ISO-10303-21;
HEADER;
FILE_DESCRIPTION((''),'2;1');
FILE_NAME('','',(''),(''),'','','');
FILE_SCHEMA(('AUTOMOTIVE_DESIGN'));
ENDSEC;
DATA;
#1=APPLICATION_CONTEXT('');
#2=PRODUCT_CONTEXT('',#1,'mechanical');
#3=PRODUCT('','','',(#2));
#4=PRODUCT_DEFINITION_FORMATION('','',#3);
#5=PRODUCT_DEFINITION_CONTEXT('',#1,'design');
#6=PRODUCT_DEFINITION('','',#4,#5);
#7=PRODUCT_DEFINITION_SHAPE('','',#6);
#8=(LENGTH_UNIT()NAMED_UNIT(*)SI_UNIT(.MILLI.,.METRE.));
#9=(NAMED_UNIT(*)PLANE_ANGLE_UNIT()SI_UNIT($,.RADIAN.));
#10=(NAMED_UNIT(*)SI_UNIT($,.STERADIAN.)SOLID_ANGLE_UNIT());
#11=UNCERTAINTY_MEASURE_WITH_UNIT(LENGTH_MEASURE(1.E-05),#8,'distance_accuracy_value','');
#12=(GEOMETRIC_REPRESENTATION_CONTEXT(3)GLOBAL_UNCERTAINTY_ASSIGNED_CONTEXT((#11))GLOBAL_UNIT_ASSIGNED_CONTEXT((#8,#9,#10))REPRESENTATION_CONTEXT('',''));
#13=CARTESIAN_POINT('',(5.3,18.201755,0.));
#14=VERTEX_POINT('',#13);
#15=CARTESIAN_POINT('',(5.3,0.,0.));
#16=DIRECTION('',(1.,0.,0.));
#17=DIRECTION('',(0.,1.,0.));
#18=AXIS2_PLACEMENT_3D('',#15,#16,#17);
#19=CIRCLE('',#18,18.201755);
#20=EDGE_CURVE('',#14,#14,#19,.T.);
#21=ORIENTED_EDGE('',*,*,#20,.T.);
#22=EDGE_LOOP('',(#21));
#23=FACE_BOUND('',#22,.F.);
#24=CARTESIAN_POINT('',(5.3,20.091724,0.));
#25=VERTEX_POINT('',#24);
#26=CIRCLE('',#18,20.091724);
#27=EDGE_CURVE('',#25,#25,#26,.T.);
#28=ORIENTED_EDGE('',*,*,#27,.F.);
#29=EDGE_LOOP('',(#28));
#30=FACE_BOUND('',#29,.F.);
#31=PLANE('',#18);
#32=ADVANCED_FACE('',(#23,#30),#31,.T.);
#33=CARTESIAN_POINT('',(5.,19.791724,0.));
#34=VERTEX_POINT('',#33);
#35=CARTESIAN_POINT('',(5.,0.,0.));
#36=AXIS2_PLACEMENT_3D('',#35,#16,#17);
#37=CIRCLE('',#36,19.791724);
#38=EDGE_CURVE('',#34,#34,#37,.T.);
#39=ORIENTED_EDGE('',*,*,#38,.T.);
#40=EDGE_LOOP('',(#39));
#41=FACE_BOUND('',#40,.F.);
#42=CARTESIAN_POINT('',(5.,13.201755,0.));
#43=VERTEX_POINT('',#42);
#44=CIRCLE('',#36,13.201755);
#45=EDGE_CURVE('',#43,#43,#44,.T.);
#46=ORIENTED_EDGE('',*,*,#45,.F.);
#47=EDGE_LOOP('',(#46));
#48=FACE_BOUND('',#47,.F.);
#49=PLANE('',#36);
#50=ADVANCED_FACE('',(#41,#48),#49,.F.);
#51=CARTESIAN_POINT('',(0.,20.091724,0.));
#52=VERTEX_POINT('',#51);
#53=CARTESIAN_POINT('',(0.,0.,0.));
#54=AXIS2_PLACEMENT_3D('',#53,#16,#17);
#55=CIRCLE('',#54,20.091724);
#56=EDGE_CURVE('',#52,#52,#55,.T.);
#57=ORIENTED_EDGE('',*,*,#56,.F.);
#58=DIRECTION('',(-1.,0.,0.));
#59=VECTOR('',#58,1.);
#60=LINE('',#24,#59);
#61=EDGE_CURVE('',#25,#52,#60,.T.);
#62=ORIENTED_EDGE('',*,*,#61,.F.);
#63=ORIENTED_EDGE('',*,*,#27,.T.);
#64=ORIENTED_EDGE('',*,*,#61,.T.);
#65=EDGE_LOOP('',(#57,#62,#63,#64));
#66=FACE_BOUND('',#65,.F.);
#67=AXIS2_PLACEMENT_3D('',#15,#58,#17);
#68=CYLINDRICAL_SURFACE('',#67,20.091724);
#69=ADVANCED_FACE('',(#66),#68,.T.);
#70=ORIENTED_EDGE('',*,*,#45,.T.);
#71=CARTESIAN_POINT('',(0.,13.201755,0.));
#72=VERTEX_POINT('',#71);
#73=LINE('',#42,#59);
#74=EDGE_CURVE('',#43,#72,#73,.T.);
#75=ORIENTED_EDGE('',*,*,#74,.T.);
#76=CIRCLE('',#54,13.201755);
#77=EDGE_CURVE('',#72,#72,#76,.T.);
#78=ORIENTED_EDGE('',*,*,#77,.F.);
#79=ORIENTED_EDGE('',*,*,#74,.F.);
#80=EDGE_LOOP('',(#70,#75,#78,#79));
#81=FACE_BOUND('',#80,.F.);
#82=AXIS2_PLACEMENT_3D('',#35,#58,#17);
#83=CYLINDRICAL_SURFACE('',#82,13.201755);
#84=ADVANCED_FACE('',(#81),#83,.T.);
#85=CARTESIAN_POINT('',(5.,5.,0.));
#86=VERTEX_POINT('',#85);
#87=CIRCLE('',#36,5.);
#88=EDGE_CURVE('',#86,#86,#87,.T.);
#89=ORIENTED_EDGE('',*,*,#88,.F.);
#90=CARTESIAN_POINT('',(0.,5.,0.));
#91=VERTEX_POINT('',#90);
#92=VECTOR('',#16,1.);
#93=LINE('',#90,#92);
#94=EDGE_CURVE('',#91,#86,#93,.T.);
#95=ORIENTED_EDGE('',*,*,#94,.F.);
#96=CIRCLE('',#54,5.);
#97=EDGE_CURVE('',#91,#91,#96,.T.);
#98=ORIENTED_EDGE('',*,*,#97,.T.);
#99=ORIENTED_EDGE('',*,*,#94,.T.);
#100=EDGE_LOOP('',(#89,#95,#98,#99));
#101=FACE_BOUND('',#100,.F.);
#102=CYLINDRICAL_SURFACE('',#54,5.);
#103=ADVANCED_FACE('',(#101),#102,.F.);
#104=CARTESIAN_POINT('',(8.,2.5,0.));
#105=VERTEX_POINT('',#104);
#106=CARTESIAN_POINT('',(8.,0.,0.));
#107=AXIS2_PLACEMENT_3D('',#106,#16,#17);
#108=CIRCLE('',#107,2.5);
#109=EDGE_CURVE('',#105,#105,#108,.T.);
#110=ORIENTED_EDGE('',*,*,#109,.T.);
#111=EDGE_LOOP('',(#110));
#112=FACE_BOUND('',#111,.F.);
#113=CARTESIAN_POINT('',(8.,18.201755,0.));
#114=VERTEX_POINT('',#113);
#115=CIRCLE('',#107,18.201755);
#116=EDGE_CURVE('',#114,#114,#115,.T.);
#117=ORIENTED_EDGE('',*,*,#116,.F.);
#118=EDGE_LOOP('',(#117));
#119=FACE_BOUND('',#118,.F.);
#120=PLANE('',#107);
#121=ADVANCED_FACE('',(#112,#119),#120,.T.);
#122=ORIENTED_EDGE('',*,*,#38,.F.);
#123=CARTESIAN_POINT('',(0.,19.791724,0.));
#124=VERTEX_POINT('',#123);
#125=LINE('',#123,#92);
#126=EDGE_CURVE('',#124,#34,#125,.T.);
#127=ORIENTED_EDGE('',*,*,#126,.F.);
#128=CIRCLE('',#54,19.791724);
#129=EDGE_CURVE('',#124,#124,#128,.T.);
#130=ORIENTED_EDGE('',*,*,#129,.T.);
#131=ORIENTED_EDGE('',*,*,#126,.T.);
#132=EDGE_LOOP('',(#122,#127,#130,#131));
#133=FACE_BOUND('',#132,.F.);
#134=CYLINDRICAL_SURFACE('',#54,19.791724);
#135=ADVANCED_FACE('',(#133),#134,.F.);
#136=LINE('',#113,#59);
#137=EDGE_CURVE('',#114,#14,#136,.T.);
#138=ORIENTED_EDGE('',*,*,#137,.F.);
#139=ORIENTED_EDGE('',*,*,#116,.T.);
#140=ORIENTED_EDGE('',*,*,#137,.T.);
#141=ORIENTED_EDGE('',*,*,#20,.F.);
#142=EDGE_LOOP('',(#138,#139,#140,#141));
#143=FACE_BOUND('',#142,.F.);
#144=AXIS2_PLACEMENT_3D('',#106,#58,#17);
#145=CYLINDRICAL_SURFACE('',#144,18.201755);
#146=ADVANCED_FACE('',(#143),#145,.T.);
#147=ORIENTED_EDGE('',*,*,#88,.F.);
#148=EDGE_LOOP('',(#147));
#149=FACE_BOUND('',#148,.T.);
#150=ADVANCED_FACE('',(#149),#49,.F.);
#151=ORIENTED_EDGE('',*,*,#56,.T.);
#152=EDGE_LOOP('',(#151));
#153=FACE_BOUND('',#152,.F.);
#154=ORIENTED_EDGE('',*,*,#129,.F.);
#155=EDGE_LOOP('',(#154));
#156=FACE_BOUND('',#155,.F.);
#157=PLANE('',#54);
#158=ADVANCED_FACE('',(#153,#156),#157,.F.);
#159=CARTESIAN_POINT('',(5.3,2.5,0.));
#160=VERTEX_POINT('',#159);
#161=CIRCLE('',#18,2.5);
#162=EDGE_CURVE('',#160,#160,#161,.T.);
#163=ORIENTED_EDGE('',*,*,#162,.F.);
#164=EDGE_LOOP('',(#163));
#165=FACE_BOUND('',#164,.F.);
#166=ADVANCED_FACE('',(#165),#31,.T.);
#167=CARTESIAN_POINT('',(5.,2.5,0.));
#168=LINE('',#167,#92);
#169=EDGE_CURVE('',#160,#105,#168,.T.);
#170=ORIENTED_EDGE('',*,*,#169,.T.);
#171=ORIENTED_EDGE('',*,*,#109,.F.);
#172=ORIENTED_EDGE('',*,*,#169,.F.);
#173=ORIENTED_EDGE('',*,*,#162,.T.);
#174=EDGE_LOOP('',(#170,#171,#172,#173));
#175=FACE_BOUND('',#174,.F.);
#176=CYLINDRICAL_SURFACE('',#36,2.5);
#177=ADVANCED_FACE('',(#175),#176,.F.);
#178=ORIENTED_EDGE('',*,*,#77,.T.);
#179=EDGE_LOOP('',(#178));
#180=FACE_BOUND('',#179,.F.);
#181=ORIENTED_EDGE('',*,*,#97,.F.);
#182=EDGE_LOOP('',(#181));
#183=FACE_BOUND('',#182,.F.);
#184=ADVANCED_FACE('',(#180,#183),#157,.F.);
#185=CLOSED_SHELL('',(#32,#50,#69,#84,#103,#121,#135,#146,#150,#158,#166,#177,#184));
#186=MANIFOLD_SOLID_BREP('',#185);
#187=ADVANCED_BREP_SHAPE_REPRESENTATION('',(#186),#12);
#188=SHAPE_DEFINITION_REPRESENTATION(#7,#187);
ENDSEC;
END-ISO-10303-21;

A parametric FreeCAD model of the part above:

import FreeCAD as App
import Part
import Sketcher

doc = App.newDocument("Part")
body = doc.addObject("PartDesign::Body", "Body")

# Sketch on XY plane
sketch1 = body.newObject("Sketcher::SketchObject", "Sketch")
sketch1.AttachmentSupport = (doc.getObject("XY_Plane"), [""])
sketch1.MapMode = "FlatFace"
sketch1.addGeometry([
    Part.LineSegment(App.Vector(0, 13.2, 0), App.Vector(0, 5, 0)),  # 0
    Part.LineSegment(App.Vector(0, 5, 0), App.Vector(5, 5, 0)),  # 1
    Part.LineSegment(App.Vector(5, 5, 0), App.Vector(5, 2.5, 0)),  # 2
    Part.LineSegment(App.Vector(5, 2.5, 0), App.Vector(8, 2.5, 0)),  # 3
    Part.LineSegment(App.Vector(8, 2.5, 0), App.Vector(8, 18.2, 0)),  # 4
    Part.LineSegment(App.Vector(8, 18.2, 0), App.Vector(5, 18.2, 0)),  # 5
    Part.LineSegment(App.Vector(5, 18.2, 0), App.Vector(5, 13.2, 0)),  # 6
    Part.LineSegment(App.Vector(5, 13.2, 0), App.Vector(0, 13.2, 0)),  # 7
], False)
sketch1.addConstraint([
    Sketcher.Constraint("Coincident", 0, 2, 1, 1),
    Sketcher.Constraint("Coincident", 1, 2, 2, 1),
    Sketcher.Constraint("Coincident", 2, 2, 3, 1),
    Sketcher.Constraint("Coincident", 3, 2, 4, 1),
    Sketcher.Constraint("Coincident", 4, 2, 5, 1),
    Sketcher.Constraint("Coincident", 5, 2, 6, 1),
    Sketcher.Constraint("Coincident", 6, 2, 7, 1),
    Sketcher.Constraint("Coincident", 7, 2, 0, 1),
    Sketcher.Constraint("Vertical", 0),
    Sketcher.Constraint("Horizontal", 1),
    Sketcher.Constraint("Vertical", 2),
    Sketcher.Constraint("Horizontal", 3),
    Sketcher.Constraint("Vertical", 4),
    Sketcher.Constraint("Horizontal", 5),
    Sketcher.Constraint("Vertical", 6),
    Sketcher.Constraint("Horizontal", 7),
    Sketcher.Constraint("PointOnObject", 0, 2, -2),
    Sketcher.Constraint("Vertical", 2, 2, 5, 2),
    Sketcher.Constraint("Equal", 7, 6),
    Sketcher.Constraint("DistanceX", 1, 1, 1, 2, 5.0),
    Sketcher.Constraint("DistanceX", 3, 1, 3, 2, 3.0),
    Sketcher.Constraint("DistanceY", 2, 2, 2, 1, 2.5),
    Sketcher.Constraint("DistanceY", -1, 1, 0, 2, 5.0),
    Sketcher.Constraint("DistanceY", 0, 2, 0, 1, 8.201755),
])
revolution = body.newObject("PartDesign::Revolution", "Revolution")
revolution.Profile = sketch1
revolution.ReferenceAxis = (sketch1, ["H_Axis"])
revolution.Angle = 360

# Sketch on XY plane
sketch2 = body.newObject("Sketcher::SketchObject", "Sketch001")
sketch2.AttachmentSupport = (doc.getObject("XY_Plane"), [""])
sketch2.MapMode = "FlatFace"
sketch2.addGeometry([
    Part.LineSegment(App.Vector(5, 2.5, 0), App.Vector(5, 0, 0)),  # 0
    Part.LineSegment(App.Vector(5, 0, 0), App.Vector(5.3, 0, 0)),  # 1
    Part.LineSegment(App.Vector(5.3, 0, 0), App.Vector(5.3, 2.5, 0)),  # 2
    Part.LineSegment(App.Vector(5.3, 2.5, 0), App.Vector(5, 2.5, 0)),  # 3
    Part.LineSegment(App.Vector(5, 19.79, 0), App.Vector(5, 18.2, 0)),  # 4
    Part.LineSegment(App.Vector(5, 18.2, 0), App.Vector(5.3, 18.2, 0)),  # 5
    Part.LineSegment(App.Vector(5.3, 18.2, 0), App.Vector(5.3, 20.09, 0)),  # 6
    Part.LineSegment(App.Vector(5.3, 20.09, 0), App.Vector(0, 20.09, 0)),  # 7
    Part.LineSegment(App.Vector(0, 20.09, 0), App.Vector(0, 19.79, 0)),  # 8
    Part.LineSegment(App.Vector(0, 19.79, 0), App.Vector(5, 19.79, 0)),  # 9
], False)
sketch2.addConstraint([
    Sketcher.Constraint("Coincident", 0, 2, 1, 1),
    Sketcher.Constraint("Coincident", 1, 2, 2, 1),
    Sketcher.Constraint("Coincident", 2, 2, 3, 1),
    Sketcher.Constraint("Coincident", 3, 2, 0, 1),
    Sketcher.Constraint("Coincident", 4, 2, 5, 1),
    Sketcher.Constraint("Coincident", 5, 2, 6, 1),
    Sketcher.Constraint("Coincident", 6, 2, 7, 1),
    Sketcher.Constraint("Coincident", 7, 2, 8, 1),
    Sketcher.Constraint("Coincident", 8, 2, 9, 1),
    Sketcher.Constraint("Coincident", 9, 2, 4, 1),
    Sketcher.Constraint("Vertical", 0),
    Sketcher.Constraint("Horizontal", 1),
    Sketcher.Constraint("Vertical", 2),
    Sketcher.Constraint("Horizontal", 3),
    Sketcher.Constraint("Vertical", 4),
    Sketcher.Constraint("Horizontal", 5),
    Sketcher.Constraint("Vertical", 6),
    Sketcher.Constraint("Horizontal", 7),
    Sketcher.Constraint("Vertical", 8),
    Sketcher.Constraint("Horizontal", 9),
    Sketcher.Constraint("PointOnObject", 0, 2, -1),
    Sketcher.Constraint("PointOnObject", 7, 2, -2),
    Sketcher.Constraint("Vertical", 3, 2, 4, 2),
    Sketcher.Constraint("Vertical", 2, 2, 5, 2),
    Sketcher.Constraint("Equal", 5, 8),
    Sketcher.Constraint("DistanceX", 9, 1, 9, 2, 5.0),
    Sketcher.Constraint("DistanceX", 1, 1, 1, 2, 0.3),
    Sketcher.Constraint("DistanceY", 0, 2, 0, 1, 2.5),
    Sketcher.Constraint("DistanceY", 4, 2, 4, 1, 1.589969),
    Sketcher.Constraint("DistanceY", -1, 1, 4, 2, 18.201755),
])
revolution2 = body.newObject("PartDesign::Revolution", "Revolution001")
revolution2.Profile = sketch2
revolution2.ReferenceAxis = (sketch2, ["H_Axis"])
revolution2.Angle = 360

doc.recompute()
